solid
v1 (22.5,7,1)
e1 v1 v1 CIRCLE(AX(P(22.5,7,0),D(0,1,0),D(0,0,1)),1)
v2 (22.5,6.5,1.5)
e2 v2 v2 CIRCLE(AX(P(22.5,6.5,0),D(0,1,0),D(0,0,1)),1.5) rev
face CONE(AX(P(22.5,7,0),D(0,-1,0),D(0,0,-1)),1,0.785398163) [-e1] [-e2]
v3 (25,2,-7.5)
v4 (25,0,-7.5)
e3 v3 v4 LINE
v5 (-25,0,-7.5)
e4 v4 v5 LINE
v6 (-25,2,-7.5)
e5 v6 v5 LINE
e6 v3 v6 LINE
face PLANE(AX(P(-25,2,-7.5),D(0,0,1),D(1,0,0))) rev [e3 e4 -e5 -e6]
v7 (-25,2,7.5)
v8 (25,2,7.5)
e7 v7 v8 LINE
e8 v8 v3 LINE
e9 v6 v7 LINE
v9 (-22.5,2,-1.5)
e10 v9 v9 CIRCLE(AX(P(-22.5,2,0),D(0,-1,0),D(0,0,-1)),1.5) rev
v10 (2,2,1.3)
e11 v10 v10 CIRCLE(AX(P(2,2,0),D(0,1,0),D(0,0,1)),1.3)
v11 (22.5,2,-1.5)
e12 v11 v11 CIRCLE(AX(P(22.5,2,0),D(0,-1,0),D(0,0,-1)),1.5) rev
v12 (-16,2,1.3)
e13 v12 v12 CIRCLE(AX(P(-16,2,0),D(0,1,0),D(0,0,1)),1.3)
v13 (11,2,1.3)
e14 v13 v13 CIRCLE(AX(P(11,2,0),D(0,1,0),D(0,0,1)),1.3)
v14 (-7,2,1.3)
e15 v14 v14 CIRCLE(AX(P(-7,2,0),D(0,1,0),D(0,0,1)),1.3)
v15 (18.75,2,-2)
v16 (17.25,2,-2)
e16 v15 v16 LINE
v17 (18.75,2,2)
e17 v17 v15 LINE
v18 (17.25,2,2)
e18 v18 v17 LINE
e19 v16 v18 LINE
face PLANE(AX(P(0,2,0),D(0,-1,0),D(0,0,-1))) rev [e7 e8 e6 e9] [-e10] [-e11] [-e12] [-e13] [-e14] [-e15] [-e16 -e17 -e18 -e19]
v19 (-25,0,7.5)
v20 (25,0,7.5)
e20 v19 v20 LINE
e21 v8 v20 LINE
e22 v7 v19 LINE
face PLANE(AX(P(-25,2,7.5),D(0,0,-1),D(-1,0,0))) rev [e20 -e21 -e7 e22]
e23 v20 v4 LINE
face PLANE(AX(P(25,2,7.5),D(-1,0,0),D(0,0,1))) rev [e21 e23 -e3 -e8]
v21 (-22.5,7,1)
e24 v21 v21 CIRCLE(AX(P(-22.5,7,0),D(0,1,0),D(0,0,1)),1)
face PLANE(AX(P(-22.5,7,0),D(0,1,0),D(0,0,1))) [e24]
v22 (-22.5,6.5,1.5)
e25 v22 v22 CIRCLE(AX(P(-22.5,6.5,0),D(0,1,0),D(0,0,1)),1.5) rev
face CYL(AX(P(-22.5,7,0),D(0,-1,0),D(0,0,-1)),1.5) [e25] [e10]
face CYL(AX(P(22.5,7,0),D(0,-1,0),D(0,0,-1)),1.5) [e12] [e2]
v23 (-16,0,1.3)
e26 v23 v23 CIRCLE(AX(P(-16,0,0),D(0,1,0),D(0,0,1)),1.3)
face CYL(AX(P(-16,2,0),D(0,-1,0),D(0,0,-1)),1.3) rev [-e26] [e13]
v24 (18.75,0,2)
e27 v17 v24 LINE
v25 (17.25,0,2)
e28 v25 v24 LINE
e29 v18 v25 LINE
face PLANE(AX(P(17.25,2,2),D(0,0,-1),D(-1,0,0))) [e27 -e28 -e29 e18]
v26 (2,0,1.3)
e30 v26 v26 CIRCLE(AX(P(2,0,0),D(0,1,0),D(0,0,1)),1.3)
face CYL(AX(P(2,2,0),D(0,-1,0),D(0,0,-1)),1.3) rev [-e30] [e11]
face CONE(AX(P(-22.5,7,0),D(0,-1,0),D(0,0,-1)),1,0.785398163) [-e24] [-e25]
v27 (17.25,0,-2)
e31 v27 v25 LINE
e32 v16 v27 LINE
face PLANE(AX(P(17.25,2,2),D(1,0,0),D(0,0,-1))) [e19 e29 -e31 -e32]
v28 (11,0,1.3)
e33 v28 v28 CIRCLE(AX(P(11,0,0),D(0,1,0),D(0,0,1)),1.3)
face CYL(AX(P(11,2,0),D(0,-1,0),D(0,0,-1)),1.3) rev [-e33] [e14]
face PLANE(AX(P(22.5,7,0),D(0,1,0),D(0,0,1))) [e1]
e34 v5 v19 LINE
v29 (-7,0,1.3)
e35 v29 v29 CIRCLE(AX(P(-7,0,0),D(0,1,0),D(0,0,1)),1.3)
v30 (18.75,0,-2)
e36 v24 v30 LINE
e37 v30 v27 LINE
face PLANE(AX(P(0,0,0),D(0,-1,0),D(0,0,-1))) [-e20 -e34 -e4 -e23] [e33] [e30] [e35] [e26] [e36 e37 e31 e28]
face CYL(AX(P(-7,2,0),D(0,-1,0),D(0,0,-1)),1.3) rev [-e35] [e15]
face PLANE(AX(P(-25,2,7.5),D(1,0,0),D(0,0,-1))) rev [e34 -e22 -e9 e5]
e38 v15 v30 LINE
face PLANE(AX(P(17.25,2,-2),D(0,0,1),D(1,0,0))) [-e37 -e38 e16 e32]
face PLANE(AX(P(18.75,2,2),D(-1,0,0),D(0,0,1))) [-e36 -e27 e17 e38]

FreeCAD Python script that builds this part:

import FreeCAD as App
import Part
import Sketcher
Q = App.Units.Quantity


def edges_at(feature, points):
    """Names of the edges that pass closest to the given points."""
    edges = feature.Shape.Edges
    near = lambda p: min(range(len(edges)), key=lambda i: edges[i].distToShape(Part.Vertex(*p))[0])
    return sorted({f"Edge{near(p) + 1}" for p in points})


def add_polygon(sketch, points):
    """Adds a closed chain of lines whose ends are joined by coincident constraints."""
    first, n = sketch.GeometryCount, len(points)
    for a, b in zip(points, points[1:] + points[:1]):
        sketch.addGeometry(Part.LineSegment(App.Vector(*a, 0), App.Vector(*b, 0)), False)
    for i in range(n):
        sketch.addConstraint(Sketcher.Constraint("Coincident", first + i, 2, first + (i + 1) % n, 1))

doc = App.newDocument("Part")
body = doc.addObject("PartDesign::Body", "Body")

# Sketch on XZ plane
sketch1 = body.newObject("Sketcher::SketchObject", "Sketch")
sketch1.AttachmentSupport = (doc.getObject("XZ_Plane"), [""])
sketch1.MapMode = "FlatFace"
add_polygon(sketch1, [(-25, -7.5), (-25, 7.5), (25, 7.5), (25, -7.5)])  # lines 0-3
sketch1.addGeometry(Part.Circle(App.Vector(-16, 0, 0), App.Vector(0, 0, 1), 1.3), False)  # 4
sketch1.addGeometry(Part.Circle(App.Vector(-7, 0, 0), App.Vector(0, 0, 1), 1.3), False)  # 5
sketch1.addGeometry(Part.Circle(App.Vector(2, 0, 0), App.Vector(0, 0, 1), 1.3), False)  # 6
sketch1.addGeometry(Part.Circle(App.Vector(11, 0, 0), App.Vector(0, 0, 1), 1.3), False)  # 7
add_polygon(sketch1, [(18.75, 2), (17.25, 2), (17.25, -2), (18.75, -2)])  # lines 8-11
sketch1.addConstraint([
    Sketcher.Constraint("Vertical", 0),
    Sketcher.Constraint("Horizontal", 1),
    Sketcher.Constraint("Vertical", 2),
    Sketcher.Constraint("Horizontal", 3),
    Sketcher.Constraint("Horizontal", 8),
    Sketcher.Constraint("Vertical", 9),
    Sketcher.Constraint("Horizontal", 10),
    Sketcher.Constraint("Vertical", 11),
    Sketcher.Constraint("Equal", 4, 5),
    Sketcher.Constraint("Equal", 5, 6),
    Sketcher.Constraint("Equal", 6, 7),
    Sketcher.Constraint("Symmetric", 0, 2, 2, 2, -1, 1),
    Sketcher.Constraint("PointOnObject", 4, 3, -1),
    Sketcher.Constraint("PointOnObject", 5, 3, -1),
    Sketcher.Constraint("PointOnObject", 6, 3, -1),
    Sketcher.Constraint("PointOnObject", 7, 3, -1),
    Sketcher.Constraint("Diameter", 4, Q("2.6 mm")),
    Sketcher.Constraint("DistanceX", 1, 1, 1, 2, Q("50 mm")),
    Sketcher.Constraint("DistanceY", 0, 1, 0, 2, Q("15 mm")),
    Sketcher.Constraint("DistanceY", 9, 2, 9, 1, Q("4 mm")),
    Sketcher.Constraint("DistanceX", 8, 2, 8, 1, Q("1.5 mm")),
    Sketcher.Constraint("DistanceX", 4, 3, -1, 1, Q("16 mm")),
    Sketcher.Constraint("DistanceX", 5, 3, -1, 1, Q("7 mm")),
    Sketcher.Constraint("DistanceX", -1, 1, 6, 3, Q("2 mm")),
    Sketcher.Constraint("DistanceX", -1, 1, 7, 3, Q("11 mm")),
    Sketcher.Constraint("DistanceY", -1, 1, 8, 2, Q("2 mm")),
    Sketcher.Constraint("DistanceX", -1, 1, 8, 2, Q("17.25 mm")),
])
pad1 = body.newObject("PartDesign::Pad", "Pad")
pad1.Profile = sketch1
pad1.Length = 2
pad1.Reversed = True

# Sketch on XZ plane
sketch2 = body.newObject("Sketcher::SketchObject", "Sketch001")
sketch2.AttachmentSupport = (doc.getObject("XZ_Plane"), [""])
sketch2.MapMode = "FlatFace"
sketch2.AttachmentOffset = App.Placement(App.Vector(0, 0, -2), App.Rotation())
sketch2.addGeometry([
    Part.Circle(App.Vector(-22.5, 0, 0), App.Vector(0, 0, 1), 1.5),
    Part.Circle(App.Vector(22.5, 0, 0), App.Vector(0, 0, 1), 1.5),
], False)
sketch2.addConstraint([
    Sketcher.Constraint("Equal", 0, 1),
    Sketcher.Constraint("Symmetric", 0, 3, 1, 3, -1, 1),
    Sketcher.Constraint("PointOnObject", 0, 3, -1),
    Sketcher.Constraint("Diameter", 0, Q("3 mm")),
    Sketcher.Constraint("DistanceX", 0, 3, 1, 3, Q("45 mm")),
])
pad2 = body.newObject("PartDesign::Pad", "Pad001")
pad2.Profile = sketch2
pad2.Length = 5
pad2.Reversed = True
doc.recompute()

chamfer = body.newObject("PartDesign::Chamfer", "Chamfer")
chamfer.Base = (pad2, edges_at(pad2, [(-22.5, 7, 1.5)]))
chamfer.Size = 0.5
doc.recompute()

chamfer2 = body.newObject("PartDesign::Chamfer", "Chamfer001")
chamfer2.Base = (chamfer, edges_at(chamfer, [(22.5, 7, 1.5)]))
chamfer2.Size = 0.5

doc.recompute()
